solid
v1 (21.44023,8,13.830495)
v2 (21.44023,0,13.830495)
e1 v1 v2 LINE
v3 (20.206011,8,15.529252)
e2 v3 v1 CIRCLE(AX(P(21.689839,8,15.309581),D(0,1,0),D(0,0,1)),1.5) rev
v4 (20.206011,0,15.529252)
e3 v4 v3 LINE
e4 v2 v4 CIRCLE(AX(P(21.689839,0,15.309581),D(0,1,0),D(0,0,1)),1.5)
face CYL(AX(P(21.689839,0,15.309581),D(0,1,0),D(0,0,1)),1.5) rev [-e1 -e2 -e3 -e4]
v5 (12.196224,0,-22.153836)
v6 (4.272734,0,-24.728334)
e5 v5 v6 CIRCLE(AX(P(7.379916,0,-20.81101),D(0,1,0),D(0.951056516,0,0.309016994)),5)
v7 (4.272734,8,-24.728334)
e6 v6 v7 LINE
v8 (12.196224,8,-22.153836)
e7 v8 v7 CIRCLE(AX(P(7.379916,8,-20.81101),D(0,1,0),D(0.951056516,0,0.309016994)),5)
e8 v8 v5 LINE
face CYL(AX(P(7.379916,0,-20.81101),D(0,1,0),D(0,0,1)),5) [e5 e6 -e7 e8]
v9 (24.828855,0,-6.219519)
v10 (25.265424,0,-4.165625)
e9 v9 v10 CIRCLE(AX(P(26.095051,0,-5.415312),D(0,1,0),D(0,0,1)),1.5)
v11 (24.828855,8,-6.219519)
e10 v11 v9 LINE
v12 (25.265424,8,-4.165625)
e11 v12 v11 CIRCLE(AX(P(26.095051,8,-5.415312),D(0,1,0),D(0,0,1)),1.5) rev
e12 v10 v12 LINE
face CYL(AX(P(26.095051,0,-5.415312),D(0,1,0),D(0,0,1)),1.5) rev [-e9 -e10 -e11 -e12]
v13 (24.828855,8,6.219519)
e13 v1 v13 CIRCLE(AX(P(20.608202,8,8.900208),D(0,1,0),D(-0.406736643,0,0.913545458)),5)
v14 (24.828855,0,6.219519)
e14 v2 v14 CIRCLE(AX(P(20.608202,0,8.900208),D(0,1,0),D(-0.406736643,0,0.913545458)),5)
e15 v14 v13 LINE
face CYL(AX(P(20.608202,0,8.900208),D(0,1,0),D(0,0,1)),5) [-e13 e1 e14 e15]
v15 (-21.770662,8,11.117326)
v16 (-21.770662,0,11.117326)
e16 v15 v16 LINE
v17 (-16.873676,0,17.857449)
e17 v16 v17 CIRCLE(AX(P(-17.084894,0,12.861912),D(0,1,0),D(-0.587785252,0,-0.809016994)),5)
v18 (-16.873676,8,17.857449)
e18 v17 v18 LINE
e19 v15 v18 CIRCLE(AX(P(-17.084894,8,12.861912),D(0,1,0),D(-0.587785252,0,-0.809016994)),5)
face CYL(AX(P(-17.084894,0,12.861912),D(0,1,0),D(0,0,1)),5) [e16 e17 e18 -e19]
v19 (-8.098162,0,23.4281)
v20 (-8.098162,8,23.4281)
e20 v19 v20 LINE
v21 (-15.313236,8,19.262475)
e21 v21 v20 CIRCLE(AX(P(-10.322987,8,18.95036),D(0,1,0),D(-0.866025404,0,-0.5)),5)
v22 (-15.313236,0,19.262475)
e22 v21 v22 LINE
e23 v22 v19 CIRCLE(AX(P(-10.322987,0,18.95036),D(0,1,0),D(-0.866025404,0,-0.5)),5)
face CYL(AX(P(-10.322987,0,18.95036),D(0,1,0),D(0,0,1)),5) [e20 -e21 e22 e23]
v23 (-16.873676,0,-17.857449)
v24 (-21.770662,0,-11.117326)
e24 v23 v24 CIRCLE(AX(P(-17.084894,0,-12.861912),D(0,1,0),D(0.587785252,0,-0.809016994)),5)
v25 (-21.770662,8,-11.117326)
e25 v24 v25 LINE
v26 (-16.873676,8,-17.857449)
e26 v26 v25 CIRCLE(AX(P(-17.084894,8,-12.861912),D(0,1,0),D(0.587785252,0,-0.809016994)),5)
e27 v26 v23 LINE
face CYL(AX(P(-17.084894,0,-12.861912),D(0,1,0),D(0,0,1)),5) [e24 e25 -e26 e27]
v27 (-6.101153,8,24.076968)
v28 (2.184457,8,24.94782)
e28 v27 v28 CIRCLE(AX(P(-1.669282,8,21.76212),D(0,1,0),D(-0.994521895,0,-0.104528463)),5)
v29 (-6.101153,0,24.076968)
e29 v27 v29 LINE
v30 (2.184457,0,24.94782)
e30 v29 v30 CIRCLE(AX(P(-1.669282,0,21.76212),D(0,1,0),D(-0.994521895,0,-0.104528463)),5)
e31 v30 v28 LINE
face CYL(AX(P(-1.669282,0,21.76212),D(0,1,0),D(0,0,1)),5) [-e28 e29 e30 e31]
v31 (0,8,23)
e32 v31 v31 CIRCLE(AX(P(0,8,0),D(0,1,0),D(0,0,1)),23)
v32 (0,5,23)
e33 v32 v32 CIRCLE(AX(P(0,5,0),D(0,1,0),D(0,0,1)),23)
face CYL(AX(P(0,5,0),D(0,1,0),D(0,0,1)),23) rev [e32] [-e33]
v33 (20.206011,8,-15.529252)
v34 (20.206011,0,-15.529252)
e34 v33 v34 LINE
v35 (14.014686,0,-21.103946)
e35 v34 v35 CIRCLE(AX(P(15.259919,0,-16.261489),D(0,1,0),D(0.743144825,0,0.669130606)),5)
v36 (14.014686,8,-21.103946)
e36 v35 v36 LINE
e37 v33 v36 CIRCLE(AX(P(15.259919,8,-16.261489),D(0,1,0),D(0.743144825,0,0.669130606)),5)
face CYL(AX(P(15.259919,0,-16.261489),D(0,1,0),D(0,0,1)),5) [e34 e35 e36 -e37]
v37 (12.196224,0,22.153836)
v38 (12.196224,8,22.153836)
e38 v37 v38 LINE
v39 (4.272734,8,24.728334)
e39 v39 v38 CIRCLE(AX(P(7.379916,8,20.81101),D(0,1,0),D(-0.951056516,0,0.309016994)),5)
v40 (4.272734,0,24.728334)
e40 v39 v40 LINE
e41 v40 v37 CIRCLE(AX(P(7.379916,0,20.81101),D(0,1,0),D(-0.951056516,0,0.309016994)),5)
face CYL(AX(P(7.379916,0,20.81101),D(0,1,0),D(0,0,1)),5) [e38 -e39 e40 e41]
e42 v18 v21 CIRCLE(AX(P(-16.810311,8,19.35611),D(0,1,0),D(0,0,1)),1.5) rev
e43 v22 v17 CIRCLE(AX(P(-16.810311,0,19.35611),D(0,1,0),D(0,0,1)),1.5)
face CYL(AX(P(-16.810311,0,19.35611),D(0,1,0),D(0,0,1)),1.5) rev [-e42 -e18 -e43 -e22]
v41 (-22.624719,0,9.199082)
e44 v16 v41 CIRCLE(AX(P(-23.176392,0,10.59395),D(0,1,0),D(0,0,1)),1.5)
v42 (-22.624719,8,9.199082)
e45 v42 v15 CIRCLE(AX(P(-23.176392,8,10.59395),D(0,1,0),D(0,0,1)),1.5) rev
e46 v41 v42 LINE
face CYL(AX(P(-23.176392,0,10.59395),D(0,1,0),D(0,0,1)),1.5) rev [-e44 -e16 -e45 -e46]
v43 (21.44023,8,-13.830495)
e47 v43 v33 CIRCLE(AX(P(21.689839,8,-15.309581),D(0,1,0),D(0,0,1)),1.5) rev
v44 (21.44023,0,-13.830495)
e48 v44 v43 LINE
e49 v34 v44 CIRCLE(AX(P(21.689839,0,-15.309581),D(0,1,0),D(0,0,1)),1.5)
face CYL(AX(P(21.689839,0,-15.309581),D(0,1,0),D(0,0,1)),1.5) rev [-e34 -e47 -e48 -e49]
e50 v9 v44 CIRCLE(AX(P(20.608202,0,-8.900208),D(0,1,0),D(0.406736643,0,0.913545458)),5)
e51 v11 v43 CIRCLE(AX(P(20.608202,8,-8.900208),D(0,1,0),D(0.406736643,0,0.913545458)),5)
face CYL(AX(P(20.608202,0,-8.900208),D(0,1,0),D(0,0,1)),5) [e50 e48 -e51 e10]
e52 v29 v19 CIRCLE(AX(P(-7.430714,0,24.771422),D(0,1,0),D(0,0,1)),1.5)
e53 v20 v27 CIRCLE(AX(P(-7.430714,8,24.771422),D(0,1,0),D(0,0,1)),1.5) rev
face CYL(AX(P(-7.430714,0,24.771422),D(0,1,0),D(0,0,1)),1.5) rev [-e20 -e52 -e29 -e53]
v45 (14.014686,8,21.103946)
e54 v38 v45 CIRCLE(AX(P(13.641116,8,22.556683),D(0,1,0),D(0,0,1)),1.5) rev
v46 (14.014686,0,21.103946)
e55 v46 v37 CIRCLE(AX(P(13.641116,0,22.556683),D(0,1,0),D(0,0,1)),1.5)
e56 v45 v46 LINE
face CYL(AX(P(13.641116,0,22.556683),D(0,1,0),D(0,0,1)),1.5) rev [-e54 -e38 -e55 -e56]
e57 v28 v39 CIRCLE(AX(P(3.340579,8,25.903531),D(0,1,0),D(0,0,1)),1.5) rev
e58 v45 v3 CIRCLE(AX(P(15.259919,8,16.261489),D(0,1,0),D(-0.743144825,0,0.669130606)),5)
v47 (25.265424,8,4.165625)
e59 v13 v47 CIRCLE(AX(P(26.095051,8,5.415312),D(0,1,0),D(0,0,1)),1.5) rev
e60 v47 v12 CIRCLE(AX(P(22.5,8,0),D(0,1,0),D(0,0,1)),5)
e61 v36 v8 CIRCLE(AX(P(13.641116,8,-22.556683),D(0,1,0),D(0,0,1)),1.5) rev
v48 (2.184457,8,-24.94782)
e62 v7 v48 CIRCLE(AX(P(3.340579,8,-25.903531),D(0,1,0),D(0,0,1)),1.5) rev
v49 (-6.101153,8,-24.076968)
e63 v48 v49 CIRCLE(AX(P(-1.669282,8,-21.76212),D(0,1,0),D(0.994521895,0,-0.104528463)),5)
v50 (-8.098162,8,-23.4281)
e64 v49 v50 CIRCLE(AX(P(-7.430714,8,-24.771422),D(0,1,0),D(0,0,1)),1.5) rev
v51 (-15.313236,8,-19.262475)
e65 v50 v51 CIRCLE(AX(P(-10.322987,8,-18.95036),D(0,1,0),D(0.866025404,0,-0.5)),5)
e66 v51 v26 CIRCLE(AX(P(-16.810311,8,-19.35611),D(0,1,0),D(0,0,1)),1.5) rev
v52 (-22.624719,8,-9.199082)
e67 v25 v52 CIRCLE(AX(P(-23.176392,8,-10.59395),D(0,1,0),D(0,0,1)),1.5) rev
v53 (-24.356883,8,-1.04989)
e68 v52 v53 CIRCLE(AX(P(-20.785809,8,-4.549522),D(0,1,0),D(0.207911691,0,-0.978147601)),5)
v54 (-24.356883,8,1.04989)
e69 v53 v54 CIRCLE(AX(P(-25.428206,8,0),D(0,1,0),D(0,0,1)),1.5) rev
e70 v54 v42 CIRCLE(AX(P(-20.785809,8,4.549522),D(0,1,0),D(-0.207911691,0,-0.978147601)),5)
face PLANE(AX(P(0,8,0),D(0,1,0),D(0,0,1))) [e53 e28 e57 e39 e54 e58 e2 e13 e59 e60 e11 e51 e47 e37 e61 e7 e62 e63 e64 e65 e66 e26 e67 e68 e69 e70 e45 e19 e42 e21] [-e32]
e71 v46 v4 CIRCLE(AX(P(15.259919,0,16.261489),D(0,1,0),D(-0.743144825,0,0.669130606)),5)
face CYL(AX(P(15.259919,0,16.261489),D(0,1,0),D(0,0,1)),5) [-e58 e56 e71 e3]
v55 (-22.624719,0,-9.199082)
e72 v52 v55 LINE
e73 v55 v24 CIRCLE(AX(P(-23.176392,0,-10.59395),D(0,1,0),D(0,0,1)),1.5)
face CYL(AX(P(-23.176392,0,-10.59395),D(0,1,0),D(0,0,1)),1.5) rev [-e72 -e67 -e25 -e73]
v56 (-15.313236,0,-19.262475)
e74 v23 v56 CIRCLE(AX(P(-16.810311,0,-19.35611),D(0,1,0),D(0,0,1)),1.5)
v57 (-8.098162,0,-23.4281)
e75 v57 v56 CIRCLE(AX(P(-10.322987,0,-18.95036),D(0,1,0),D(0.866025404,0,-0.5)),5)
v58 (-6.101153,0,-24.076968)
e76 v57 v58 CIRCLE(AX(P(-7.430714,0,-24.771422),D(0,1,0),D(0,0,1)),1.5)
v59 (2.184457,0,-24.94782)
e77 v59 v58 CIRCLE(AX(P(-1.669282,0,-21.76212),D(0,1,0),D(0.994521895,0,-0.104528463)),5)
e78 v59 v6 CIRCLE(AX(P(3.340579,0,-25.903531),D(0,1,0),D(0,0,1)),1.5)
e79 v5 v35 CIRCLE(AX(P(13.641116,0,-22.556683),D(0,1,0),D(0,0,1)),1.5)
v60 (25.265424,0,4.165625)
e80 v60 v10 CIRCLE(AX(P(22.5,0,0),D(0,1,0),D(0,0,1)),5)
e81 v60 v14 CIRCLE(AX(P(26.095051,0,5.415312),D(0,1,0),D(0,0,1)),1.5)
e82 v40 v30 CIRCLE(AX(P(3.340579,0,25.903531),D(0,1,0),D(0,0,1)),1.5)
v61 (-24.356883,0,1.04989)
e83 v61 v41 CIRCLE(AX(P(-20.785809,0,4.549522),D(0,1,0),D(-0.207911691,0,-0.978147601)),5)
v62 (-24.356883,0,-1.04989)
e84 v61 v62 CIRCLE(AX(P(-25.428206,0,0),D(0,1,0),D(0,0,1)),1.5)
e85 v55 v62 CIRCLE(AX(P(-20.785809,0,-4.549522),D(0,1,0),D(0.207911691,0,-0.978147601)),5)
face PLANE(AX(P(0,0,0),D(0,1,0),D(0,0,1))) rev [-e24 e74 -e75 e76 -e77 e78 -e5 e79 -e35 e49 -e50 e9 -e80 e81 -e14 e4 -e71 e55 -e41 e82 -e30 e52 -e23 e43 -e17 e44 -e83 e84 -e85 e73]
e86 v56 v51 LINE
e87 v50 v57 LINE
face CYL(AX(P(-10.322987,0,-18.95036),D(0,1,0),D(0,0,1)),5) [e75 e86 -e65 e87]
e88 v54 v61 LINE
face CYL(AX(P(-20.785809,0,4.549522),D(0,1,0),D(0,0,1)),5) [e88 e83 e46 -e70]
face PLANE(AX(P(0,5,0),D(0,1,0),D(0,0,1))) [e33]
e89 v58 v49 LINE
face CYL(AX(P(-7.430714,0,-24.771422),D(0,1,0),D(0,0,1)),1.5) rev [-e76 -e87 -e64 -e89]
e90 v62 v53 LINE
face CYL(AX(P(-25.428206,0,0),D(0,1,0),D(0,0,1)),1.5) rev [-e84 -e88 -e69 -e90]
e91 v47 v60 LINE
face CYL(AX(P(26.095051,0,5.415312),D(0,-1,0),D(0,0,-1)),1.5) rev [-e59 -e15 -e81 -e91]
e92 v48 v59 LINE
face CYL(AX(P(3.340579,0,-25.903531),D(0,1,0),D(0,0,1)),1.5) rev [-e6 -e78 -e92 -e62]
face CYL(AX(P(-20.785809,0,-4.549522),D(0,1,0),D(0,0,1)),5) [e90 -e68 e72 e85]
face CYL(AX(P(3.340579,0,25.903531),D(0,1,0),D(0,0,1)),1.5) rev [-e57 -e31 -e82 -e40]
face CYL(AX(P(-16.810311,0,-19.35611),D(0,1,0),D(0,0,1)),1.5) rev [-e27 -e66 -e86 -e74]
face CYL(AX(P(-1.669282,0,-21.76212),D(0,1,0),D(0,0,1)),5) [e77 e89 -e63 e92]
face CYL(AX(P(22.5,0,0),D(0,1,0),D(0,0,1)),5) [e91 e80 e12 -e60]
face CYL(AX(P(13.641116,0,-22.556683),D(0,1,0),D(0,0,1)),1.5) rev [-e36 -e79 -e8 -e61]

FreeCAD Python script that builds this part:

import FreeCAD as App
import Part
import Sketcher

V = App.Vector


def edges_at(feature, points):
    """Names of the edges that pass closest to the given points."""
    edges = feature.Shape.Edges
    near = lambda p: min(range(len(edges)), key=lambda i: edges[i].distToShape(Part.Vertex(*p))[0])
    return sorted({f"Edge{near(p) + 1}" for p in points})

doc = App.newDocument("Part")
body = doc.addObject("PartDesign::Body", "Body")

# Sketch on XZ plane
sketch1 = body.newObject("Sketcher::SketchObject", "Sketch")
sketch1.AttachmentSupport = (doc.getObject("XZ_Plane"), [""])
sketch1.MapMode = "FlatFace"
sketch1.addGeometry(Part.Circle(V(0, 0, 0), V(0, 0, 1), 22), False)
sketch1.addConstraint([
    Sketcher.Constraint("Coincident", 0, 3, -1, 1),
    Sketcher.Constraint("Diameter", 0, 45.0),
])
pad1 = body.newObject("PartDesign::Pad", "Pad")
pad1.Profile = sketch1
pad1.Length = 8
pad1.Reversed = True

# Sketch on XZ plane
sketch2 = body.newObject("Sketcher::SketchObject", "Sketch001")
sketch2.AttachmentSupport = (doc.getObject("XZ_Plane"), [""])
sketch2.MapMode = "FlatFace"
sketch2.AttachmentOffset = App.Placement(V(0, 0, -8), App.Rotation())
sketch2.addGeometry(Part.Circle(V(22, 0, 0), V(0, 0, 1), 5), False)
sketch2.addConstraint([
    Sketcher.Constraint("PointOnObject", 0, 3, -1),
    Sketcher.Constraint("Diameter", 0, 10.0),
    Sketcher.Constraint("DistanceX", -1, 1, 0, 3, 22.5),
])
pad2 = body.newObject("PartDesign::Pad", "Pad001")
pad2.Profile = sketch2
pad2.Length = 8
doc.recompute()

datumline = body.newObject("PartDesign::Line", "DatumLine")
datumline.Placement = App.Placement(V(0.618009, 0, 0), App.Rotation(V(0, 0, 1), V(0, 1, 0)))
polarpattern = body.newObject("PartDesign::PolarPattern", "PolarPattern")
polarpattern.Originals = [pad2]
polarpattern.Axis = (datumline, [""])
polarpattern.Angle = 360
polarpattern.Occurrences = 15
body.Tip = polarpattern
doc.recompute()

fillet = body.newObject("PartDesign::Fillet", "Fillet")
fillet.Base = (polarpattern, edges_at(polarpattern, [
    (23.583, 4, 4.881),
    (23.583, 4, -4.881),
    (19.612, 4, -13.8),
    (12.357, 4, -20.332),
    (3.072, 4, -23.349),
    (-6.637, 4, -22.329),
    (-15.092, 4, -17.447),
    (-20.83, 4, -9.549),
    (-22.86, 4, 0),
    (-20.83, 4, 9.549),
    (-15.092, 4, 17.447),
    (-6.637, 4, 22.329),
    (3.072, 4, 23.349),
    (12.357, 4, 20.332),
    (19.612, 4, 13.8),
]))
fillet.Radius = 1.5

# Sketch on XZ plane
sketch3 = body.newObject("Sketcher::SketchObject", "Sketch002")
sketch3.AttachmentSupport = (doc.getObject("XZ_Plane"), [""])
sketch3.MapMode = "FlatFace"
sketch3.AttachmentOffset = App.Placement(V(0, 0, -8), App.Rotation())
sketch3.addGeometry(Part.Circle(V(0, 0, 0), V(0, 0, 1), 23), False)
sketch3.addConstraint([
    Sketcher.Constraint("Coincident", 0, 3, -1, 1),
    Sketcher.Constraint("Diameter", 0, 46.0),
])
pocket1 = body.newObject("PartDesign::Pocket", "Pocket")
pocket1.Profile = sketch3
pocket1.Length = 3
pocket1.Reversed = True

doc.recompute()
